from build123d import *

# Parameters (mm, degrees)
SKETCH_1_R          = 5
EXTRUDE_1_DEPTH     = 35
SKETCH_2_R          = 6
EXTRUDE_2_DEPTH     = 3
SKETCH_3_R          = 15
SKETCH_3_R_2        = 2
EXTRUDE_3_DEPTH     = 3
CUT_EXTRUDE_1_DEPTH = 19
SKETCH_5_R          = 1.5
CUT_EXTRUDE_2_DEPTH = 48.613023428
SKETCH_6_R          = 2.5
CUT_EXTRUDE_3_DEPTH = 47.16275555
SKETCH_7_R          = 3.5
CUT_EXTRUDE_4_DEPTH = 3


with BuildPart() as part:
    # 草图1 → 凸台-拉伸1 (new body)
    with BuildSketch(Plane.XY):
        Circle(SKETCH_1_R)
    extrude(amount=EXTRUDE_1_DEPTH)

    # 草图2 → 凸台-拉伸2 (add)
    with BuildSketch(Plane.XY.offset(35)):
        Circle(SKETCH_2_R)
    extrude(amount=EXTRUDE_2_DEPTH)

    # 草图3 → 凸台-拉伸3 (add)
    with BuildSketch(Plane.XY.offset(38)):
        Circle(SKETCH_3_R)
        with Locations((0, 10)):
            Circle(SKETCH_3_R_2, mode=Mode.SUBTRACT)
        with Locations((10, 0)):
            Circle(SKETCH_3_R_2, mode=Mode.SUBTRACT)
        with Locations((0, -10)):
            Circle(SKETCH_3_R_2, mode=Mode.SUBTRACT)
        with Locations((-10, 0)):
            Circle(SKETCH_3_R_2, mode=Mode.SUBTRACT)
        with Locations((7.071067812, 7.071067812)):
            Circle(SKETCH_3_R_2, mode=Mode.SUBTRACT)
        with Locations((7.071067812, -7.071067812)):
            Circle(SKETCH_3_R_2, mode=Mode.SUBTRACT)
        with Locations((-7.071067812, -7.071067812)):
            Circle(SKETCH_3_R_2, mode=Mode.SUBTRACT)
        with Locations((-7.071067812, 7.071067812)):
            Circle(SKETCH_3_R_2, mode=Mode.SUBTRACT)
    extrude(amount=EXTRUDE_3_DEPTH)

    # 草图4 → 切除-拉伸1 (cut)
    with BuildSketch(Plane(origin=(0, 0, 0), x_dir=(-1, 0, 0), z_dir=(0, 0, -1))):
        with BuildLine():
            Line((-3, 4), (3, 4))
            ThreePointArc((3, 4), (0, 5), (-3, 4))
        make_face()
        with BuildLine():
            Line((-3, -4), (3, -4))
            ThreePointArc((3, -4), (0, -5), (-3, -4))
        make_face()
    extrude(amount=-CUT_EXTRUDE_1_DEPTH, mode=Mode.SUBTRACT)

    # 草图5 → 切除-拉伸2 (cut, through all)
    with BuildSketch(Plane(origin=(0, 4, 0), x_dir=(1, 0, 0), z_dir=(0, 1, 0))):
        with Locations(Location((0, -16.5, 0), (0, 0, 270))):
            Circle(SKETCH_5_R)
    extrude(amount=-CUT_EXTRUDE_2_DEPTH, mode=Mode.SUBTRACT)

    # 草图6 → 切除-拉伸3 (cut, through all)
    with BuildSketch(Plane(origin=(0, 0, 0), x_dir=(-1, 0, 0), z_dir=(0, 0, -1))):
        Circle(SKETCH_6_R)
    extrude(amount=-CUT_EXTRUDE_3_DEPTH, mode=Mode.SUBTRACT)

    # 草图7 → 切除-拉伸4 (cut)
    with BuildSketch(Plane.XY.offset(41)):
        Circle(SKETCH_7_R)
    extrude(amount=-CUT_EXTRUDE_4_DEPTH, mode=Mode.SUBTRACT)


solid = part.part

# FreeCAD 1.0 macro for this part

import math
import FreeCAD as App
import Part
import Sketcher

V = App.Vector

doc = App.newDocument("Part")
body = doc.addObject("PartDesign::Body", "Body")

# Sketch on XY plane
sketch1 = body.newObject("Sketcher::SketchObject", "Sketch")
sketch1.AttachmentSupport = (doc.getObject("XY_Plane"), [""])
sketch1.MapMode = "FlatFace"
sketch1.addGeometry(Part.Circle(V(0, 0, 0), V(0, 0, 1), 5), False)
sketch1.addConstraint([
    Sketcher.Constraint("Coincident", 0, 3, -1, 1),
    Sketcher.Constraint("Diameter", 0, 10.0),
])
pad1 = body.newObject("PartDesign::Pad", "Pad")
pad1.Profile = sketch1
pad1.Length = 35

# Sketch on XY plane
sketch2 = body.newObject("Sketcher::SketchObject", "Sketch001")
sketch2.AttachmentSupport = (doc.getObject("XY_Plane"), [""])
sketch2.MapMode = "FlatFace"
sketch2.AttachmentOffset = App.Placement(V(0, 0, 35), App.Rotation())
sketch2.addGeometry(Part.Circle(V(0, 0, 0), V(0, 0, 1), 6), False)
sketch2.addConstraint([
    Sketcher.Constraint("Coincident", 0, 3, -1, 1),
    Sketcher.Constraint("Diameter", 0, 12.0),
])
pad2 = body.newObject("PartDesign::Pad", "Pad001")
pad2.Profile = sketch2
pad2.Length = 3

# Sketch on XY plane
sketch3 = body.newObject("Sketcher::SketchObject", "Sketch002")
sketch3.AttachmentSupport = (doc.getObject("XY_Plane"), [""])
sketch3.MapMode = "FlatFace"
sketch3.AttachmentOffset = App.Placement(V(0, 0, 38), App.Rotation())
sketch3.addGeometry([
    Part.Circle(V(0, 0, 0), V(0, 0, 1), 15),  # 0
    Part.Circle(V(-7.1, -7.1, 0), V(0, 0, 1), 2),  # 1
    Part.Circle(V(0, -10, 0), V(0, 0, 1), 2),  # 2
    Part.Circle(V(7.1, -7.1, 0), V(0, 0, 1), 2),  # 3
    Part.Circle(V(-10, 0, 0), V(0, 0, 1), 2),  # 4
    Part.Circle(V(-7.1, 7.1, 0), V(0, 0, 1), 2),  # 5
    Part.Circle(V(10, 0, 0), V(0, 0, 1), 2),  # 6
    Part.Circle(V(0, 10, 0), V(0, 0, 1), 2),  # 7
    Part.Circle(V(7.1, 7.1, 0), V(0, 0, 1), 2),  # 8
], False)
sketch3.addConstraint([
    Sketcher.Constraint("Coincident", 0, 3, -1, 1),
    Sketcher.Constraint("Equal", 1, 2),
    Sketcher.Constraint("Equal", 2, 3),
    Sketcher.Constraint("Equal", 3, 4),
    Sketcher.Constraint("Equal", 4, 5),
    Sketcher.Constraint("Equal", 5, 6),
    Sketcher.Constraint("Equal", 6, 7),
    Sketcher.Constraint("Equal", 7, 8),
    Sketcher.Constraint("Symmetric", 3, 3, 5, 3, -1, 1),
    Sketcher.Constraint("Symmetric", 4, 3, 6, 3, -1, 1),
    Sketcher.Constraint("Symmetric", 2, 3, 7, 3, -1, 1),
    Sketcher.Constraint("Symmetric", 1, 3, 8, 3, -1, 1),
    Sketcher.Constraint("Symmetric", 1, 3, 3, 3, -2),
    Sketcher.Constraint("PointOnObject", 2, 3, -2),
    Sketcher.Constraint("PointOnObject", 4, 3, -1),
    Sketcher.Constraint("Diameter", 0, 30.0),
    Sketcher.Constraint("Diameter", 1, 4.0),
    Sketcher.Constraint("DistanceY", 2, 3, -1, 1, 10.0),
    Sketcher.Constraint("DistanceX", 4, 3, -1, 1, 10.0),
    Sketcher.Constraint("DistanceX", 1, 3, -1, 1, 7.071068),
    Sketcher.Constraint("DistanceY", 1, 3, -1, 1, 7.071068),
])
pad3 = body.newObject("PartDesign::Pad", "Pad002")
pad3.Profile = sketch3
pad3.Length = 3

# Sketch on XY plane
sketch4 = body.newObject("Sketcher::SketchObject", "Sketch003")
sketch4.AttachmentSupport = (doc.getObject("XY_Plane"), [""])
sketch4.MapMode = "FlatFace"
sketch4.addGeometry([
    Part.LineSegment(V(3, 4, 0), V(-3, 4, 0)),
    Part.ArcOfCircle(Part.Circle(V(0, 0, 0), V(0, 0, 1), 5), math.radians(53), math.radians(127)),
    Part.LineSegment(V(-3, -4, 0), V(3, -4, 0)),
    Part.ArcOfCircle(Part.Circle(V(0, 0, 0), V(0, 0, 1), 5), math.radians(-127), math.radians(-53)),
], False)
sketch4.addConstraint([
    Sketcher.Constraint("Coincident", 0, 1, 1, 1),
    Sketcher.Constraint("Coincident", 1, 2, 0, 2),
    Sketcher.Constraint("Coincident", 2, 1, 3, 1),
    Sketcher.Constraint("Coincident", 3, 2, 2, 2),
    Sketcher.Constraint("Horizontal", 0),
    Sketcher.Constraint("Horizontal", 2),
    Sketcher.Constraint("Coincident", 1, 3, -1, 1),
    Sketcher.Constraint("Coincident", 3, 3, -1, 1),
    Sketcher.Constraint("Equal", 1, 3),
    Sketcher.Constraint("Vertical", 1, 2, 2, 1),
    Sketcher.Constraint("Radius", 1, 5.0),
    Sketcher.Constraint("DistanceX", 0, 2, 0, 1, 6.0),
])
pocket1 = body.newObject("PartDesign::Pocket", "Pocket")
pocket1.Profile = sketch4
pocket1.Length = 19
pocket1.Reversed = True

# Sketch on XZ plane
sketch5 = body.newObject("Sketcher::SketchObject", "Sketch004")
sketch5.AttachmentSupport = (doc.getObject("XZ_Plane"), [""])
sketch5.MapMode = "FlatFace"
sketch5.AttachmentOffset = App.Placement(V(0, 0, -4), App.Rotation())
sketch5.addGeometry(Part.Circle(V(0, 16.5, 0), V(0, 0, 1), 1.5), False)
sketch5.addConstraint([
    Sketcher.Constraint("PointOnObject", 0, 3, -2),
    Sketcher.Constraint("Diameter", 0, 3.0),
    Sketcher.Constraint("DistanceY", -1, 1, 0, 3, 16.5),
])
pocket2 = body.newObject("PartDesign::Pocket", "Pocket001")
pocket2.Profile = sketch5
pocket2.Type = "ThroughAll"
pocket2.Reversed = True

# Sketch on XY plane
sketch6 = body.newObject("Sketcher::SketchObject", "Sketch005")
sketch6.AttachmentSupport = (doc.getObject("XY_Plane"), [""])
sketch6.MapMode = "FlatFace"
sketch6.addGeometry(Part.Circle(V(0, 0, 0), V(0, 0, 1), 2.5), False)
sketch6.addConstraint([
    Sketcher.Constraint("Coincident", 0, 3, -1, 1),
    Sketcher.Constraint("Diameter", 0, 5.0),
])
pocket3 = body.newObject("PartDesign::Pocket", "Pocket002")
pocket3.Profile = sketch6
pocket3.Type = "ThroughAll"
pocket3.Reversed = True

# Sketch on XY plane
sketch7 = body.newObject("Sketcher::SketchObject", "Sketch006")
sketch7.AttachmentSupport = (doc.getObject("XY_Plane"), [""])
sketch7.MapMode = "FlatFace"
sketch7.AttachmentOffset = App.Placement(V(0, 0, 41), App.Rotation())
sketch7.addGeometry(Part.Circle(V(0, 0, 0), V(0, 0, 1), 3.5), False)
sketch7.addConstraint([
    Sketcher.Constraint("Coincident", 0, 3, -1, 1),
    Sketcher.Constraint("Diameter", 0, 7.0),
])
pocket4 = body.newObject("PartDesign::Pocket", "Pocket003")
pocket4.Profile = sketch7
pocket4.Length = 3

doc.recompute()
